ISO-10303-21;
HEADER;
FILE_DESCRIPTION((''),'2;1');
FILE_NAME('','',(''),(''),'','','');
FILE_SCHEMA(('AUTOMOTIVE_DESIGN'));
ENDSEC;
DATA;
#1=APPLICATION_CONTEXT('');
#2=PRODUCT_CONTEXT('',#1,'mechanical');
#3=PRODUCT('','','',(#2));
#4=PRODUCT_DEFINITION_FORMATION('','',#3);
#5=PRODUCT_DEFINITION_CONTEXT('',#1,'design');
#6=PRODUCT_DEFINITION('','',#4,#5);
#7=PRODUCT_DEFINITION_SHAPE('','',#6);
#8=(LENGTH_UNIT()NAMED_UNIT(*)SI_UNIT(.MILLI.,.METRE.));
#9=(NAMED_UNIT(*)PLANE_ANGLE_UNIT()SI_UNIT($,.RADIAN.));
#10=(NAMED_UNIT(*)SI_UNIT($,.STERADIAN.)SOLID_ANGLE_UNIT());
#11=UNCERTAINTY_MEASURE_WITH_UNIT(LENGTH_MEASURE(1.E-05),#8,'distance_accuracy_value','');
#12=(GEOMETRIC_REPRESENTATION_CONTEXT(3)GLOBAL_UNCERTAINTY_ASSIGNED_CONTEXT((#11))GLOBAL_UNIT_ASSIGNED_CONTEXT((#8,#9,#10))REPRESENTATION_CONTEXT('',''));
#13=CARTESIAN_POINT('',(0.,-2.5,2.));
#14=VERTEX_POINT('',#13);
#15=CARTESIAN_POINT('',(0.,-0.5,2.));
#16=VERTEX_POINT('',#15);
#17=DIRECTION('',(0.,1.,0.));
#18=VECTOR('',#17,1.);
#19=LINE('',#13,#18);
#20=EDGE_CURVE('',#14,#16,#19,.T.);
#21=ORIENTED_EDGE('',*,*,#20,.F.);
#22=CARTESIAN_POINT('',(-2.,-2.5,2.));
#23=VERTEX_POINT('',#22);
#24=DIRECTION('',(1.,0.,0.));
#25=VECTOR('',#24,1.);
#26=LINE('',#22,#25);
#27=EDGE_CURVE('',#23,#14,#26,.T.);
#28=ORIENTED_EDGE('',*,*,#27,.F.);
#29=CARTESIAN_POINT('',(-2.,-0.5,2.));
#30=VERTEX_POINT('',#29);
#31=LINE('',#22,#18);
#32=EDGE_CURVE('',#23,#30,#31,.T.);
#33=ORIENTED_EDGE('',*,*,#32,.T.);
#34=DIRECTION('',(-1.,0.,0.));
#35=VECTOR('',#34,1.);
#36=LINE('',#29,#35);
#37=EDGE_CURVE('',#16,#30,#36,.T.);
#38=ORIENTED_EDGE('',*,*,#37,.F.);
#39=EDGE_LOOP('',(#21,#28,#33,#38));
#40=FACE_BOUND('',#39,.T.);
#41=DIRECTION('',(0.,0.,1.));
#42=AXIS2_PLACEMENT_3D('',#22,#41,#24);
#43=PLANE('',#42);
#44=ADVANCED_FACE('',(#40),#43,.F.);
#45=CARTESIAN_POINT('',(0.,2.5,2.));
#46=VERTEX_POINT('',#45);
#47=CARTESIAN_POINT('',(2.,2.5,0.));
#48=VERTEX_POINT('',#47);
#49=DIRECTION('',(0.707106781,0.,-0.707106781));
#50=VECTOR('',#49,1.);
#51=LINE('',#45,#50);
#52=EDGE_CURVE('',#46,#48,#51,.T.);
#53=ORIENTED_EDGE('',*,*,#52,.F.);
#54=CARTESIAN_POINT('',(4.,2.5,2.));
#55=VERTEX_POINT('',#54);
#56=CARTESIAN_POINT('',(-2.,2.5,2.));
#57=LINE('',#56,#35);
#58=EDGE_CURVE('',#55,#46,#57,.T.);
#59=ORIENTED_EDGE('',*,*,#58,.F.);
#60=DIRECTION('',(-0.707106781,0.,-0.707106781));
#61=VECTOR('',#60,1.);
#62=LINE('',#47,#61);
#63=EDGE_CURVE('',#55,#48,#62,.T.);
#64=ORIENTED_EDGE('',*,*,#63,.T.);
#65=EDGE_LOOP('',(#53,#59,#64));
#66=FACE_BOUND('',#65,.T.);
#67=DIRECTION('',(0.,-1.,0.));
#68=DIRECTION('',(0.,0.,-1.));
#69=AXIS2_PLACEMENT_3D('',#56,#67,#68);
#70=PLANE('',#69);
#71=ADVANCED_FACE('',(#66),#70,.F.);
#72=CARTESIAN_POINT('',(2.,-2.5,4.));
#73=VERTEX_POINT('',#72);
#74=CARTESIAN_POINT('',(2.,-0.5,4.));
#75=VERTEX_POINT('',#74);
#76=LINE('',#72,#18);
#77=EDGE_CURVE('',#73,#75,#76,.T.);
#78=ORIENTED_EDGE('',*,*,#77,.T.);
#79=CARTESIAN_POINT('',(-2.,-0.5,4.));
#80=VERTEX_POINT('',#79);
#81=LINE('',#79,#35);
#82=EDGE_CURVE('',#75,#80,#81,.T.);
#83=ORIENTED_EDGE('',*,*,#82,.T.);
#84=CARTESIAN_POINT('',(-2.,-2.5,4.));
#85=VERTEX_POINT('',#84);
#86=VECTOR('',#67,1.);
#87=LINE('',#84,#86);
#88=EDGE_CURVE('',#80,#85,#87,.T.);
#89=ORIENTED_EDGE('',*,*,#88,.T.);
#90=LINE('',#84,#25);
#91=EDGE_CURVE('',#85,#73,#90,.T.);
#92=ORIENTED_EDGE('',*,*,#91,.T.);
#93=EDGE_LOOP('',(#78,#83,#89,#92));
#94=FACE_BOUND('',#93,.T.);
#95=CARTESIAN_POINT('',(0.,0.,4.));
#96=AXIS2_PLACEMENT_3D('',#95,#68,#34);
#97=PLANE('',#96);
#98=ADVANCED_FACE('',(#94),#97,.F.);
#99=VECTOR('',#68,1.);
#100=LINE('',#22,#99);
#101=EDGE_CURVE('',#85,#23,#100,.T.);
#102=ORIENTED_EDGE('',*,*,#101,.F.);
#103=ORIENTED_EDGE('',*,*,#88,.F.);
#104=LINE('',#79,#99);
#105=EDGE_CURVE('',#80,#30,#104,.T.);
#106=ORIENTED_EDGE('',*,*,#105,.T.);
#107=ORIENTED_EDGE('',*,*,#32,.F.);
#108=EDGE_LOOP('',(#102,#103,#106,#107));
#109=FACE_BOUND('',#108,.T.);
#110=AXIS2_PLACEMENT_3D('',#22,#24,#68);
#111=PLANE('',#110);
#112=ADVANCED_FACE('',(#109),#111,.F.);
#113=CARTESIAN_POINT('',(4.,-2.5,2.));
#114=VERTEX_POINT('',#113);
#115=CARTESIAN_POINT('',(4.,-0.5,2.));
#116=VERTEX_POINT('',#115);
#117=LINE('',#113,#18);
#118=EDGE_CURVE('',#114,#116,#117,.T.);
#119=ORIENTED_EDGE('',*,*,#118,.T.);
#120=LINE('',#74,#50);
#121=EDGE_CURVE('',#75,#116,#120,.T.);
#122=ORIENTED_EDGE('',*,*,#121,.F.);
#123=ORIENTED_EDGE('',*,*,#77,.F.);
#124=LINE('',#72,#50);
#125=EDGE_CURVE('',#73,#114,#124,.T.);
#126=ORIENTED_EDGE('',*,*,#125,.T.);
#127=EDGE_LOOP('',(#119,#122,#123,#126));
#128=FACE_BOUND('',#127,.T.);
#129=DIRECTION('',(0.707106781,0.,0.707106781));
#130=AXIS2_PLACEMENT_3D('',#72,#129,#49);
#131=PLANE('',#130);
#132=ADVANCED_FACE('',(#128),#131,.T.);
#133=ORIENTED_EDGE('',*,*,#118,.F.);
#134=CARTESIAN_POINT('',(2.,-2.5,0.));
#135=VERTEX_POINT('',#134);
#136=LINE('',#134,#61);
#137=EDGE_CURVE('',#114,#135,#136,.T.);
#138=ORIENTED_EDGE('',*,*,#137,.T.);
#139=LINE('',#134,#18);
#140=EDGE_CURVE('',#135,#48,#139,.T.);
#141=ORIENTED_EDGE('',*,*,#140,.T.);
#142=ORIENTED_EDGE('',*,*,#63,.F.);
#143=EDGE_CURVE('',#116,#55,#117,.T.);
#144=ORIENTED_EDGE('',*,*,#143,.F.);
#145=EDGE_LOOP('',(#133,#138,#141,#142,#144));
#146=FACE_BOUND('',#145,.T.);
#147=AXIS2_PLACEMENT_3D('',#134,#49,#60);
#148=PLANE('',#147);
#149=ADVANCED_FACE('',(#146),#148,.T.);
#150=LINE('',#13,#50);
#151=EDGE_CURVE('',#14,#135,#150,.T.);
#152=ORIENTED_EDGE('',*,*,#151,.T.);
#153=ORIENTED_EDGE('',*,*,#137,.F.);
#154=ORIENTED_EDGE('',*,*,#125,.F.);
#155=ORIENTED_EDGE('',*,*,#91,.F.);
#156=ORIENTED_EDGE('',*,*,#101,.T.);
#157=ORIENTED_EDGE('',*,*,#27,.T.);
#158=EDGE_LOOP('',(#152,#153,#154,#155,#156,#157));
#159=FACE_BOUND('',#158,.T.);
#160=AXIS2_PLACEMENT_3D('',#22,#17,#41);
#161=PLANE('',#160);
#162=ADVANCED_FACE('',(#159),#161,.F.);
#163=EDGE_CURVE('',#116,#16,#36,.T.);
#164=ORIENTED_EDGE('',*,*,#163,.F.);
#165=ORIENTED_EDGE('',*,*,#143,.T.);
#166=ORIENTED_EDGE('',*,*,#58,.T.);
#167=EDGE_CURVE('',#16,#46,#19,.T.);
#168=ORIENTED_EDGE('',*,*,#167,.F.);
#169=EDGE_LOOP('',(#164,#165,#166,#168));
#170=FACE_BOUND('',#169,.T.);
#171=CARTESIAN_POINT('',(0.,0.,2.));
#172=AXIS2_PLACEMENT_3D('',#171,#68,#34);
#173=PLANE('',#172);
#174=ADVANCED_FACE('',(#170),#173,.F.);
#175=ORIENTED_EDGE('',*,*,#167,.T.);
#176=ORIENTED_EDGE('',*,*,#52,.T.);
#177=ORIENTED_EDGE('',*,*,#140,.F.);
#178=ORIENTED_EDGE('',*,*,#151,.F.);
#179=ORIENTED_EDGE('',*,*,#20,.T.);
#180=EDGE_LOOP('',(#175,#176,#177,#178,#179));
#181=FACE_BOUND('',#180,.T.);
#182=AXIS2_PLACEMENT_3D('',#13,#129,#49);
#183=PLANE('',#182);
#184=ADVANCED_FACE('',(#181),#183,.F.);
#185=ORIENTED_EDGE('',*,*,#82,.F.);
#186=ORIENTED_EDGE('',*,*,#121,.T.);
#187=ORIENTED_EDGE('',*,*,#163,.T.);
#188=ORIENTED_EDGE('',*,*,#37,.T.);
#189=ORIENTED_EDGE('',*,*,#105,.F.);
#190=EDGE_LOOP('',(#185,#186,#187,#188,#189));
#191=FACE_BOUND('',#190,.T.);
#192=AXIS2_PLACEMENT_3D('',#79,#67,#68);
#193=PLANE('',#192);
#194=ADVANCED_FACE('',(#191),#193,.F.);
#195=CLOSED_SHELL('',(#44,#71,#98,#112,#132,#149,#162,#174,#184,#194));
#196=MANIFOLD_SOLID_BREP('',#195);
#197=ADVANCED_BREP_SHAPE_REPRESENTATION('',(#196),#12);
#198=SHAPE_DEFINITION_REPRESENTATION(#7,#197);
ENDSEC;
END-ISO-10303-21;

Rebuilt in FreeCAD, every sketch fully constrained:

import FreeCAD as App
import Part
import Sketcher
Q = App.Units.Quantity


def add_polygon(sketch, points):
    """Adds a closed chain of lines whose ends are joined by coincident constraints."""
    first, n = sketch.GeometryCount, len(points)
    for a, b in zip(points, points[1:] + points[:1]):
        sketch.addGeometry(Part.LineSegment(App.Vector(*a, 0), App.Vector(*b, 0)), False)
    for i in range(n):
        sketch.addConstraint(Sketcher.Constraint("Coincident", first + i, 2, first + (i + 1) % n, 1))

doc = App.newDocument("Part")
body = doc.addObject("PartDesign::Body", "Body")

# Sketch on XY plane
sketch1 = doc.addObject("Sketcher::SketchObject", "Sketch")
body.addObject(sketch1)
sketch1.AttachmentSupport = (doc.XY_Plane, [""])
sketch1.MapMode = "FlatFace"
add_polygon(sketch1, [(-2, 2.5), (-2, -2.5), (2, -2.5), (2, 2.5)])  # lines 0-3
sketch1.addConstraint(Sketcher.Constraint("Vertical", 0))
sketch1.addConstraint(Sketcher.Constraint("Horizontal", 1))
sketch1.addConstraint(Sketcher.Constraint("Vertical", 2))
sketch1.addConstraint(Sketcher.Constraint("Horizontal", 3))
sketch1.addConstraint(Sketcher.Constraint("Symmetric", 0, 2, 2, 2, -1, 1))
sketch1.addConstraint(Sketcher.Constraint("DistanceX", 1, 1, 1, 2, 4.0))
sketch1.addConstraint(Sketcher.Constraint("DistanceY", 0, 2, 0, 1, 5.0))
pad1 = doc.addObject("PartDesign::Pad", "Pad")
body.addObject(pad1)
pad1.Profile = sketch1
pad1.Length = 2

# Sketch on XY plane
sketch2 = doc.addObject("Sketcher::SketchObject", "Sketch001")
body.addObject(sketch2)
sketch2.AttachmentSupport = (doc.XY_Plane, [""])
sketch2.MapMode = "FlatFace"
sketch2.AttachmentOffset = App.Placement(App.Vector(0, 0, 2), App.Rotation())
add_polygon(sketch2, [(-2, -0.5), (-2, -2.5), (2, -2.5), (2, -0.5)])  # lines 0-3
sketch2.addConstraint(Sketcher.Constraint("Vertical", 0))
sketch2.addConstraint(Sketcher.Constraint("Horizontal", 1))
sketch2.addConstraint(Sketcher.Constraint("Vertical", 2))
sketch2.addConstraint(Sketcher.Constraint("Horizontal", 3))
sketch2.addConstraint(Sketcher.Constraint("DistanceX", 1, 1, 1, 2, 4.0))
sketch2.addConstraint(Sketcher.Constraint("DistanceY", 0, 2, 0, 1, 2.0))
sketch2.addConstraint(Sketcher.Constraint("DistanceX", 0, 2, -1, 1, 2.0))
sketch2.addConstraint(Sketcher.Constraint("DistanceY", 0, 2, -1, 1, 2.5))
pad2 = doc.addObject("PartDesign::Pad", "Pad001")
body.addObject(pad2)
pad2.Profile = sketch2
pad2.Length = 2

# Sketch on XZ plane
sketch3 = doc.addObject("Sketcher::SketchObject", "Sketch002")
body.addObject(sketch3)
sketch3.AttachmentSupport = (doc.XZ_Plane, [""])
sketch3.MapMode = "FlatFace"
sketch3.AttachmentOffset = App.Placement(App.Vector(0, 0, 0.5), App.Rotation())
add_polygon(sketch3, [(2, 4), (4, 2), (2, 2)])  # lines 0-2
sketch3.addConstraint(Sketcher.Constraint("Horizontal", 1))
sketch3.addConstraint(Sketcher.Constraint("Vertical", 2))
sketch3.addConstraint(Sketcher.Constraint("Equal", 1, 2))
sketch3.addConstraint(Sketcher.Constraint("DistanceX", 1, 2, 1, 1, 2.0))
sketch3.addConstraint(Sketcher.Constraint("DistanceX", -1, 1, 0, 2, 4.0))
sketch3.addConstraint(Sketcher.Constraint("DistanceY", -1, 1, 0, 2, 2.0))
pad3 = doc.addObject("PartDesign::Pad", "Pad002")
body.addObject(pad3)
pad3.Profile = sketch3
pad3.Length = 2

# Sketch on XZ plane
sketch4 = doc.addObject("Sketcher::SketchObject", "Sketch003")
body.addObject(sketch4)
sketch4.AttachmentSupport = (doc.XZ_Plane, [""])
sketch4.MapMode = "FlatFace"
sketch4.AttachmentOffset = App.Placement(App.Vector(0, 0, -2.5), App.Rotation())
add_polygon(sketch4, [(4, 2), (2, 0), (1.4, 2)])  # lines 0-2
sketch4.addConstraint(Sketcher.Constraint("Horizontal", 2))
sketch4.addConstraint(Sketcher.Constraint("PointOnObject", 0, 2, -1))
sketch4.addConstraint(Sketcher.Constraint("Angle", 0, Q("-135 deg")))
sketch4.addConstraint(Sketcher.Constraint("DistanceX", -1, 1, 0, 2, 2.0))
sketch4.addConstraint(Sketcher.Constraint("DistanceY", -1, 1, 1, 2, 2.0))
sketch4.addConstraint(Sketcher.Constraint("DistanceX", 2, 1, 2, 2, 2.646688))
pad4 = doc.addObject("PartDesign::Pad", "Pad003")
body.addObject(pad4)
pad4.Profile = sketch4
pad4.Length = 5

# Sketch on XZ plane
sketch5 = doc.addObject("Sketcher::SketchObject", "Sketch004")
body.addObject(sketch5)
sketch5.AttachmentSupport = (doc.XZ_Plane, [""])
sketch5.MapMode = "FlatFace"
sketch5.AttachmentOffset = App.Placement(App.Vector(0, 0, -2.5), App.Rotation())
add_polygon(sketch5, [(-2, 2), (0, 2), (2, 0), (-2, 0)])  # lines 0-3
sketch5.addConstraint(Sketcher.Constraint("Horizontal", 0))
sketch5.addConstraint(Sketcher.Constraint("Horizontal", 2))
sketch5.addConstraint(Sketcher.Constraint("Vertical", 3))
sketch5.addConstraint(Sketcher.Constraint("Symmetric", 1, 2, 2, 2, -1, 1))
sketch5.addConstraint(Sketcher.Constraint("PointOnObject", 0, 2, -2))
sketch5.addConstraint(Sketcher.Constraint("Equal", 0, 3))
sketch5.addConstraint(Sketcher.Constraint("DistanceX", 0, 1, 0, 2, 2.0))
pocket1 = doc.addObject("PartDesign::Pocket", "Pocket")
body.addObject(pocket1)
pocket1.Profile = sketch5
pocket1.Length = 5
pocket1.Reversed = True

doc.recompute()
